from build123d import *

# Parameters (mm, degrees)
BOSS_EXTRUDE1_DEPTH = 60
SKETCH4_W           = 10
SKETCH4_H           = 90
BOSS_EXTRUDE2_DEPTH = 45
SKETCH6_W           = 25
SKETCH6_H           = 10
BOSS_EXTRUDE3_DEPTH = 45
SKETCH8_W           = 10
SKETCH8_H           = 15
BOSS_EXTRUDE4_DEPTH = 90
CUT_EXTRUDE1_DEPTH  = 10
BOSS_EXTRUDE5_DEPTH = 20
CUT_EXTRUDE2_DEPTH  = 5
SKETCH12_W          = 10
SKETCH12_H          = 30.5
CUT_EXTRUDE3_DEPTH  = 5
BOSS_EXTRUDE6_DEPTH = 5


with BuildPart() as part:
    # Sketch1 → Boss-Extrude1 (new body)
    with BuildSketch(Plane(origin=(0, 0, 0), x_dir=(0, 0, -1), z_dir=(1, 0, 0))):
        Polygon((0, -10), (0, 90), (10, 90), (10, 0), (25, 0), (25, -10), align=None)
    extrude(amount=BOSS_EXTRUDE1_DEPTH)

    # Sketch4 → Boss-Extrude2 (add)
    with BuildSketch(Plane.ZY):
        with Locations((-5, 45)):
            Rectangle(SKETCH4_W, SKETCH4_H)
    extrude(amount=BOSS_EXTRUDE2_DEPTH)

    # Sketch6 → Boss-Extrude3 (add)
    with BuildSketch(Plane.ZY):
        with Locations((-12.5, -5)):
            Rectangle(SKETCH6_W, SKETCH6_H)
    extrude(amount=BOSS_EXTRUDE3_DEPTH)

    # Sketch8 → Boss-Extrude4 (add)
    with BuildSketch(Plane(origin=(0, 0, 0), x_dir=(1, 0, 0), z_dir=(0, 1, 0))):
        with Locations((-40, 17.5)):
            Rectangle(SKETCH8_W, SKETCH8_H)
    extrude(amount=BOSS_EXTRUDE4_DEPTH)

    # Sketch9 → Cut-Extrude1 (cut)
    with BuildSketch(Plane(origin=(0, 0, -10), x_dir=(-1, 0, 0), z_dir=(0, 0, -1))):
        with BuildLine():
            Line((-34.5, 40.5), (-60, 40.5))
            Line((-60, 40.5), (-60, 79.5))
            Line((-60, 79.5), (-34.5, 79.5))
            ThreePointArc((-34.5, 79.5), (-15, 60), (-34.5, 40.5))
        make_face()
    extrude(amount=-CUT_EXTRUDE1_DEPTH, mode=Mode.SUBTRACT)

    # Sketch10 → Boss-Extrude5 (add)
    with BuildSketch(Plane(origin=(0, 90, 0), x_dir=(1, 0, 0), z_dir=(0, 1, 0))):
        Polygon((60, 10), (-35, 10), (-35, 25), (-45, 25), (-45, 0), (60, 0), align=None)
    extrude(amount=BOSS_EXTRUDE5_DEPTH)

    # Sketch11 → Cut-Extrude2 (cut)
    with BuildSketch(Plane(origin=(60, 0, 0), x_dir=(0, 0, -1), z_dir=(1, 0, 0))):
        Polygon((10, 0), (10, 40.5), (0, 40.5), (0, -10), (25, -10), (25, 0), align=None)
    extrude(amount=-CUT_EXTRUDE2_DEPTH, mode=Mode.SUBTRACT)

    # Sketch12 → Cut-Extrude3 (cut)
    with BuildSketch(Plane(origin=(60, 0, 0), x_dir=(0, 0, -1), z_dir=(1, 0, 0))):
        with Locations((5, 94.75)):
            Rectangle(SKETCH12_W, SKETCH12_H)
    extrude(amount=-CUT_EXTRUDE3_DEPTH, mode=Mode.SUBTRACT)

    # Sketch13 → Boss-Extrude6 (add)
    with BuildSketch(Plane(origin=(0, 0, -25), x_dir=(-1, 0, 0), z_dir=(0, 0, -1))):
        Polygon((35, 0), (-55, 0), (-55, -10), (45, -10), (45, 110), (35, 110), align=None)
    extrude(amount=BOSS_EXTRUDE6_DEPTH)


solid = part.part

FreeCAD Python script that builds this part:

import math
import FreeCAD as App
import Part
import Sketcher
Q = App.Units.Quantity


def add_polygon(sketch, points):
    """Adds a closed chain of lines whose ends are joined by coincident constraints."""
    first, n = sketch.GeometryCount, len(points)
    for a, b in zip(points, points[1:] + points[:1]):
        sketch.addGeometry(Part.LineSegment(App.Vector(*a, 0), App.Vector(*b, 0)), False)
    for i in range(n):
        sketch.addConstraint(Sketcher.Constraint("Coincident", first + i, 2, first + (i + 1) % n, 1))

doc = App.newDocument("Part")
body = doc.addObject("PartDesign::Body", "Body")

# Sketch on YZ plane
sketch1 = body.newObject("Sketcher::SketchObject", "Sketch")
sketch1.AttachmentSupport = (doc.getObject("YZ_Plane"), [""])
sketch1.MapMode = "FlatFace"
add_polygon(sketch1, [(90, 0), (-10, 0), (-10, -25), (0, -25), (0, -10), (90, -10)])  # lines 0-5
sketch1.addConstraint(Sketcher.Constraint("Horizontal", 0))
sketch1.addConstraint(Sketcher.Constraint("Vertical", 1))
sketch1.addConstraint(Sketcher.Constraint("Horizontal", 2))
sketch1.addConstraint(Sketcher.Constraint("Vertical", 3))
sketch1.addConstraint(Sketcher.Constraint("Horizontal", 4))
sketch1.addConstraint(Sketcher.Constraint("Vertical", 5))
sketch1.addConstraint(Sketcher.Constraint("PointOnObject", 0, 2, -1))
sketch1.addConstraint(Sketcher.Constraint("PointOnObject", 2, 2, -2))
sketch1.addConstraint(Sketcher.Constraint("Equal", 2, 5))
sketch1.addConstraint(Sketcher.Constraint("DistanceX", 0, 2, 0, 1, Q("100 mm")))
sketch1.addConstraint(Sketcher.Constraint("DistanceX", 2, 1, 2, 2, Q("10 mm")))
sketch1.addConstraint(Sketcher.Constraint("DistanceY", 1, 2, 1, 1, Q("25 mm")))
pad1 = body.newObject("PartDesign::Pad", "Pad")
pad1.Profile = sketch1
pad1.Length = 60

# Sketch on YZ plane
sketch2 = body.newObject("Sketcher::SketchObject", "Sketch001")
sketch2.AttachmentSupport = (doc.getObject("YZ_Plane"), [""])
sketch2.MapMode = "FlatFace"
add_polygon(sketch2, [(90, -10), (0, -10), (0, 0), (90, 0)])  # lines 0-3
sketch2.addConstraint(Sketcher.Constraint("Horizontal", 0))
sketch2.addConstraint(Sketcher.Constraint("Vertical", 1))
sketch2.addConstraint(Sketcher.Constraint("Horizontal", 2))
sketch2.addConstraint(Sketcher.Constraint("Vertical", 3))
sketch2.addConstraint(Sketcher.Constraint("Coincident", 1, 2, -1, 1))
sketch2.addConstraint(Sketcher.Constraint("DistanceX", 0, 2, 0, 1, Q("90 mm")))
sketch2.addConstraint(Sketcher.Constraint("DistanceY", 1, 1, 1, 2, Q("10 mm")))
pad2 = body.newObject("PartDesign::Pad", "Pad001")
pad2.Profile = sketch2
pad2.Length = 45
pad2.Reversed = True

# Sketch on YZ plane
sketch3 = body.newObject("Sketcher::SketchObject", "Sketch002")
sketch3.AttachmentSupport = (doc.getObject("YZ_Plane"), [""])
sketch3.MapMode = "FlatFace"
add_polygon(sketch3, [(0, -25), (-10, -25), (-10, 0), (0, 0)])  # lines 0-3
sketch3.addConstraint(Sketcher.Constraint("Horizontal", 0))
sketch3.addConstraint(Sketcher.Constraint("Vertical", 1))
sketch3.addConstraint(Sketcher.Constraint("Horizontal", 2))
sketch3.addConstraint(Sketcher.Constraint("Vertical", 3))
sketch3.addConstraint(Sketcher.Constraint("Coincident", 2, 2, -1, 1))
sketch3.addConstraint(Sketcher.Constraint("DistanceX", 0, 2, 0, 1, Q("10 mm")))
sketch3.addConstraint(Sketcher.Constraint("DistanceY", 1, 1, 1, 2, Q("25 mm")))
pad3 = body.newObject("PartDesign::Pad", "Pad002")
pad3.Profile = sketch3
pad3.Length = 45
pad3.Reversed = True

# Sketch on XZ plane
sketch4 = body.newObject("Sketcher::SketchObject", "Sketch003")
sketch4.AttachmentSupport = (doc.getObject("XZ_Plane"), [""])
sketch4.MapMode = "FlatFace"
add_polygon(sketch4, [(-45, -25), (-45, -10), (-35, -10), (-35, -25)])  # lines 0-3
sketch4.addConstraint(Sketcher.Constraint("Vertical", 0))
sketch4.addConstraint(Sketcher.Constraint("Horizontal", 1))
sketch4.addConstraint(Sketcher.Constraint("Vertical", 2))
sketch4.addConstraint(Sketcher.Constraint("Horizontal", 3))
sketch4.addConstraint(Sketcher.Constraint("DistanceX", 1, 1, 1, 2, Q("10 mm")))
sketch4.addConstraint(Sketcher.Constraint("DistanceY", 0, 1, 0, 2, Q("15 mm")))
sketch4.addConstraint(Sketcher.Constraint("DistanceX", 0, 2, -1, 1, Q("45 mm")))
sketch4.addConstraint(Sketcher.Constraint("DistanceY", 0, 2, -1, 1, Q("10 mm")))
pad4 = body.newObject("PartDesign::Pad", "Pad003")
pad4.Profile = sketch4
pad4.Length = 90
pad4.Reversed = True

# Sketch on XY plane
sketch5 = body.newObject("Sketcher::SketchObject", "Sketch004")
sketch5.AttachmentSupport = (doc.getObject("XY_Plane"), [""])
sketch5.MapMode = "FlatFace"
sketch5.AttachmentOffset = App.Placement(App.Vector(0, 0, -10), App.Rotation())
sketch5.addGeometry(Part.LineSegment(App.Vector(60, 40.5, 0), App.Vector(34.5, 40.5, 0)), False)
sketch5.addGeometry(Part.ArcOfCircle(Part.Circle(App.Vector(34.5, 60, 0), App.Vector(0, 0, 1), 19.5), math.radians(90), math.radians(270)), False)
sketch5.addGeometry(Part.LineSegment(App.Vector(34.5, 79.5, 0), App.Vector(60, 79.5, 0)), False)
sketch5.addGeometry(Part.LineSegment(App.Vector(60, 79.5, 0), App.Vector(60, 40.5, 0)), False)
sketch5.addConstraint(Sketcher.Constraint("Tangent", 0, 2, 1, 2))
sketch5.addConstraint(Sketcher.Constraint("Tangent", 1, 1, 2, 1))
sketch5.addConstraint(Sketcher.Constraint("Coincident", 2, 2, 3, 1))
sketch5.addConstraint(Sketcher.Constraint("Coincident", 3, 2, 0, 1))
sketch5.addConstraint(Sketcher.Constraint("Horizontal", 0))
sketch5.addConstraint(Sketcher.Constraint("Horizontal", 2))
sketch5.addConstraint(Sketcher.Constraint("Vertical", 3))
sketch5.addConstraint(Sketcher.Constraint("Radius", 1, Q("19.5 mm")))
sketch5.addConstraint(Sketcher.Constraint("DistanceX", 0, 2, 0, 1, Q("25.5 mm")))
sketch5.addConstraint(Sketcher.Constraint("DistanceY", -1, 1, 1, 3, Q("60 mm")))
sketch5.addConstraint(Sketcher.Constraint("DistanceX", -1, 1, 2, 2, Q("60 mm")))
pocket1 = body.newObject("PartDesign::Pocket", "Pocket")
pocket1.Profile = sketch5
pocket1.Length = 10
pocket1.Reversed = True

# Sketch on XZ plane
sketch6 = body.newObject("Sketcher::SketchObject", "Sketch005")
sketch6.AttachmentSupport = (doc.getObject("XZ_Plane"), [""])
sketch6.MapMode = "FlatFace"
sketch6.AttachmentOffset = App.Placement(App.Vector(0, 0, -90), App.Rotation())
add_polygon(sketch6, [(60, -10), (-35, -10), (-35, -25), (-45, -25), (-45, 0), (60, 0)])  # lines 0-5
sketch6.addConstraint(Sketcher.Constraint("Horizontal", 0))
sketch6.addConstraint(Sketcher.Constraint("Vertical", 1))
sketch6.addConstraint(Sketcher.Constraint("Horizontal", 2))
sketch6.addConstraint(Sketcher.Constraint("Vertical", 3))
sketch6.addConstraint(Sketcher.Constraint("Horizontal", 4))
sketch6.addConstraint(Sketcher.Constraint("Vertical", 5))
sketch6.addConstraint(Sketcher.Constraint("PointOnObject", 3, 2, -1))
sketch6.addConstraint(Sketcher.Constraint("Equal", 2, 5))
sketch6.addConstraint(Sketcher.Constraint("DistanceX", 0, 2, 0, 1, Q("95 mm")))
sketch6.addConstraint(Sketcher.Constraint("DistanceX", 2, 2, 2, 1, Q("10 mm")))
sketch6.addConstraint(Sketcher.Constraint("DistanceY", 1, 2, 1, 1, Q("15 mm")))
sketch6.addConstraint(Sketcher.Constraint("DistanceX", 0, 2, -1, 1, Q("35 mm")))
pad5 = body.newObject("PartDesign::Pad", "Pad004")
pad5.Profile = sketch6
pad5.Length = 20
pad5.Reversed = True

# Sketch on YZ plane
sketch7 = body.newObject("Sketcher::SketchObject", "Sketch006")
sketch7.AttachmentSupport = (doc.getObject("YZ_Plane"), [""])
sketch7.MapMode = "FlatFace"
sketch7.AttachmentOffset = App.Placement(App.Vector(0, 0, 60), App.Rotation())
add_polygon(sketch7, [(0, -10), (40.5, -10), (40.5, 0), (-10, 0), (-10, -25), (0, -25)])  # lines 0-5
sketch7.addConstraint(Sketcher.Constraint("Horizontal", 0))
sketch7.addConstraint(Sketcher.Constraint("Vertical", 1))
sketch7.addConstraint(Sketcher.Constraint("Horizontal", 2))
sketch7.addConstraint(Sketcher.Constraint("Vertical", 3))
sketch7.addConstraint(Sketcher.Constraint("Horizontal", 4))
sketch7.addConstraint(Sketcher.Constraint("Vertical", 5))
sketch7.addConstraint(Sketcher.Constraint("PointOnObject", 1, 2, -1))
sketch7.addConstraint(Sketcher.Constraint("PointOnObject", 4, 2, -2))
sketch7.addConstraint(Sketcher.Constraint("Equal", 4, 1))
sketch7.addConstraint(Sketcher.Constraint("DistanceX", 4, 1, 4, 2, Q("10 mm")))
sketch7.addConstraint(Sketcher.Constraint("DistanceY", 3, 2, 3, 1, Q("25 mm")))
sketch7.addConstraint(Sketcher.Constraint("DistanceX", 0, 1, 0, 2, Q("40.5 mm")))
pocket2 = body.newObject("PartDesign::Pocket", "Pocket001")
pocket2.Profile = sketch7
pocket2.Length = 5

# Sketch on YZ plane
sketch8 = body.newObject("Sketcher::SketchObject", "Sketch007")
sketch8.AttachmentSupport = (doc.getObject("YZ_Plane"), [""])
sketch8.MapMode = "FlatFace"
sketch8.AttachmentOffset = App.Placement(App.Vector(0, 0, 60), App.Rotation())
add_polygon(sketch8, [(110, 0), (79.5, 0), (79.5, -10), (110, -10)])  # lines 0-3
sketch8.addConstraint(Sketcher.Constraint("Horizontal", 0))
sketch8.addConstraint(Sketcher.Constraint("Vertical", 1))
sketch8.addConstraint(Sketcher.Constraint("Horizontal", 2))
sketch8.addConstraint(Sketcher.Constraint("Vertical", 3))
sketch8.addConstraint(Sketcher.Constraint("PointOnObject", 0, 2, -1))
sketch8.addConstraint(Sketcher.Constraint("DistanceY", 1, 2, 1, 1, Q("10 mm")))
sketch8.addConstraint(Sketcher.Constraint("DistanceX", 0, 2, 0, 1, Q("30.5 mm")))
sketch8.addConstraint(Sketcher.Constraint("DistanceX", -1, 1, 2, 2, Q("110 mm")))
pocket3 = body.newObject("PartDesign::Pocket", "Pocket002")
pocket3.Profile = sketch8
pocket3.Length = 5

# Sketch on XY plane
sketch9 = body.newObject("Sketcher::SketchObject", "Sketch008")
sketch9.AttachmentSupport = (doc.getObject("XY_Plane"), [""])
sketch9.MapMode = "FlatFace"
sketch9.AttachmentOffset = App.Placement(App.Vector(0, 0, -25), App.Rotation())
add_polygon(sketch9, [(-35, 0), (55, 0), (55, -10), (-45, -10), (-45, 110), (-35, 110)])  # lines 0-5
sketch9.addConstraint(Sketcher.Constraint("Horizontal", 0))
sketch9.addConstraint(Sketcher.Constraint("Vertical", 1))
sketch9.addConstraint(Sketcher.Constraint("Horizontal", 2))
sketch9.addConstraint(Sketcher.Constraint("Vertical", 3))
sketch9.addConstraint(Sketcher.Constraint("Horizontal", 4))
sketch9.addConstraint(Sketcher.Constraint("Vertical", 5))
sketch9.addConstraint(Sketcher.Constraint("PointOnObject", 0, 2, -1))
sketch9.addConstraint(Sketcher.Constraint("Equal", 4, 1))
sketch9.addConstraint(Sketcher.Constraint("DistanceX", 0, 1, 0, 2, Q("90 mm")))
sketch9.addConstraint(Sketcher.Constraint("DistanceX", 2, 2, 2, 1, Q("100 mm")))
sketch9.addConstraint(Sketcher.Constraint("DistanceY", 3, 1, 3, 2, Q("120 mm")))
sketch9.addConstraint(Sketcher.Constraint("DistanceX", -1, 1, 0, 2, Q("55 mm")))
pad6 = body.newObject("PartDesign::Pad", "Pad005")
pad6.Profile = sketch9
pad6.Length = 5
pad6.Reversed = True

doc.recompute()
